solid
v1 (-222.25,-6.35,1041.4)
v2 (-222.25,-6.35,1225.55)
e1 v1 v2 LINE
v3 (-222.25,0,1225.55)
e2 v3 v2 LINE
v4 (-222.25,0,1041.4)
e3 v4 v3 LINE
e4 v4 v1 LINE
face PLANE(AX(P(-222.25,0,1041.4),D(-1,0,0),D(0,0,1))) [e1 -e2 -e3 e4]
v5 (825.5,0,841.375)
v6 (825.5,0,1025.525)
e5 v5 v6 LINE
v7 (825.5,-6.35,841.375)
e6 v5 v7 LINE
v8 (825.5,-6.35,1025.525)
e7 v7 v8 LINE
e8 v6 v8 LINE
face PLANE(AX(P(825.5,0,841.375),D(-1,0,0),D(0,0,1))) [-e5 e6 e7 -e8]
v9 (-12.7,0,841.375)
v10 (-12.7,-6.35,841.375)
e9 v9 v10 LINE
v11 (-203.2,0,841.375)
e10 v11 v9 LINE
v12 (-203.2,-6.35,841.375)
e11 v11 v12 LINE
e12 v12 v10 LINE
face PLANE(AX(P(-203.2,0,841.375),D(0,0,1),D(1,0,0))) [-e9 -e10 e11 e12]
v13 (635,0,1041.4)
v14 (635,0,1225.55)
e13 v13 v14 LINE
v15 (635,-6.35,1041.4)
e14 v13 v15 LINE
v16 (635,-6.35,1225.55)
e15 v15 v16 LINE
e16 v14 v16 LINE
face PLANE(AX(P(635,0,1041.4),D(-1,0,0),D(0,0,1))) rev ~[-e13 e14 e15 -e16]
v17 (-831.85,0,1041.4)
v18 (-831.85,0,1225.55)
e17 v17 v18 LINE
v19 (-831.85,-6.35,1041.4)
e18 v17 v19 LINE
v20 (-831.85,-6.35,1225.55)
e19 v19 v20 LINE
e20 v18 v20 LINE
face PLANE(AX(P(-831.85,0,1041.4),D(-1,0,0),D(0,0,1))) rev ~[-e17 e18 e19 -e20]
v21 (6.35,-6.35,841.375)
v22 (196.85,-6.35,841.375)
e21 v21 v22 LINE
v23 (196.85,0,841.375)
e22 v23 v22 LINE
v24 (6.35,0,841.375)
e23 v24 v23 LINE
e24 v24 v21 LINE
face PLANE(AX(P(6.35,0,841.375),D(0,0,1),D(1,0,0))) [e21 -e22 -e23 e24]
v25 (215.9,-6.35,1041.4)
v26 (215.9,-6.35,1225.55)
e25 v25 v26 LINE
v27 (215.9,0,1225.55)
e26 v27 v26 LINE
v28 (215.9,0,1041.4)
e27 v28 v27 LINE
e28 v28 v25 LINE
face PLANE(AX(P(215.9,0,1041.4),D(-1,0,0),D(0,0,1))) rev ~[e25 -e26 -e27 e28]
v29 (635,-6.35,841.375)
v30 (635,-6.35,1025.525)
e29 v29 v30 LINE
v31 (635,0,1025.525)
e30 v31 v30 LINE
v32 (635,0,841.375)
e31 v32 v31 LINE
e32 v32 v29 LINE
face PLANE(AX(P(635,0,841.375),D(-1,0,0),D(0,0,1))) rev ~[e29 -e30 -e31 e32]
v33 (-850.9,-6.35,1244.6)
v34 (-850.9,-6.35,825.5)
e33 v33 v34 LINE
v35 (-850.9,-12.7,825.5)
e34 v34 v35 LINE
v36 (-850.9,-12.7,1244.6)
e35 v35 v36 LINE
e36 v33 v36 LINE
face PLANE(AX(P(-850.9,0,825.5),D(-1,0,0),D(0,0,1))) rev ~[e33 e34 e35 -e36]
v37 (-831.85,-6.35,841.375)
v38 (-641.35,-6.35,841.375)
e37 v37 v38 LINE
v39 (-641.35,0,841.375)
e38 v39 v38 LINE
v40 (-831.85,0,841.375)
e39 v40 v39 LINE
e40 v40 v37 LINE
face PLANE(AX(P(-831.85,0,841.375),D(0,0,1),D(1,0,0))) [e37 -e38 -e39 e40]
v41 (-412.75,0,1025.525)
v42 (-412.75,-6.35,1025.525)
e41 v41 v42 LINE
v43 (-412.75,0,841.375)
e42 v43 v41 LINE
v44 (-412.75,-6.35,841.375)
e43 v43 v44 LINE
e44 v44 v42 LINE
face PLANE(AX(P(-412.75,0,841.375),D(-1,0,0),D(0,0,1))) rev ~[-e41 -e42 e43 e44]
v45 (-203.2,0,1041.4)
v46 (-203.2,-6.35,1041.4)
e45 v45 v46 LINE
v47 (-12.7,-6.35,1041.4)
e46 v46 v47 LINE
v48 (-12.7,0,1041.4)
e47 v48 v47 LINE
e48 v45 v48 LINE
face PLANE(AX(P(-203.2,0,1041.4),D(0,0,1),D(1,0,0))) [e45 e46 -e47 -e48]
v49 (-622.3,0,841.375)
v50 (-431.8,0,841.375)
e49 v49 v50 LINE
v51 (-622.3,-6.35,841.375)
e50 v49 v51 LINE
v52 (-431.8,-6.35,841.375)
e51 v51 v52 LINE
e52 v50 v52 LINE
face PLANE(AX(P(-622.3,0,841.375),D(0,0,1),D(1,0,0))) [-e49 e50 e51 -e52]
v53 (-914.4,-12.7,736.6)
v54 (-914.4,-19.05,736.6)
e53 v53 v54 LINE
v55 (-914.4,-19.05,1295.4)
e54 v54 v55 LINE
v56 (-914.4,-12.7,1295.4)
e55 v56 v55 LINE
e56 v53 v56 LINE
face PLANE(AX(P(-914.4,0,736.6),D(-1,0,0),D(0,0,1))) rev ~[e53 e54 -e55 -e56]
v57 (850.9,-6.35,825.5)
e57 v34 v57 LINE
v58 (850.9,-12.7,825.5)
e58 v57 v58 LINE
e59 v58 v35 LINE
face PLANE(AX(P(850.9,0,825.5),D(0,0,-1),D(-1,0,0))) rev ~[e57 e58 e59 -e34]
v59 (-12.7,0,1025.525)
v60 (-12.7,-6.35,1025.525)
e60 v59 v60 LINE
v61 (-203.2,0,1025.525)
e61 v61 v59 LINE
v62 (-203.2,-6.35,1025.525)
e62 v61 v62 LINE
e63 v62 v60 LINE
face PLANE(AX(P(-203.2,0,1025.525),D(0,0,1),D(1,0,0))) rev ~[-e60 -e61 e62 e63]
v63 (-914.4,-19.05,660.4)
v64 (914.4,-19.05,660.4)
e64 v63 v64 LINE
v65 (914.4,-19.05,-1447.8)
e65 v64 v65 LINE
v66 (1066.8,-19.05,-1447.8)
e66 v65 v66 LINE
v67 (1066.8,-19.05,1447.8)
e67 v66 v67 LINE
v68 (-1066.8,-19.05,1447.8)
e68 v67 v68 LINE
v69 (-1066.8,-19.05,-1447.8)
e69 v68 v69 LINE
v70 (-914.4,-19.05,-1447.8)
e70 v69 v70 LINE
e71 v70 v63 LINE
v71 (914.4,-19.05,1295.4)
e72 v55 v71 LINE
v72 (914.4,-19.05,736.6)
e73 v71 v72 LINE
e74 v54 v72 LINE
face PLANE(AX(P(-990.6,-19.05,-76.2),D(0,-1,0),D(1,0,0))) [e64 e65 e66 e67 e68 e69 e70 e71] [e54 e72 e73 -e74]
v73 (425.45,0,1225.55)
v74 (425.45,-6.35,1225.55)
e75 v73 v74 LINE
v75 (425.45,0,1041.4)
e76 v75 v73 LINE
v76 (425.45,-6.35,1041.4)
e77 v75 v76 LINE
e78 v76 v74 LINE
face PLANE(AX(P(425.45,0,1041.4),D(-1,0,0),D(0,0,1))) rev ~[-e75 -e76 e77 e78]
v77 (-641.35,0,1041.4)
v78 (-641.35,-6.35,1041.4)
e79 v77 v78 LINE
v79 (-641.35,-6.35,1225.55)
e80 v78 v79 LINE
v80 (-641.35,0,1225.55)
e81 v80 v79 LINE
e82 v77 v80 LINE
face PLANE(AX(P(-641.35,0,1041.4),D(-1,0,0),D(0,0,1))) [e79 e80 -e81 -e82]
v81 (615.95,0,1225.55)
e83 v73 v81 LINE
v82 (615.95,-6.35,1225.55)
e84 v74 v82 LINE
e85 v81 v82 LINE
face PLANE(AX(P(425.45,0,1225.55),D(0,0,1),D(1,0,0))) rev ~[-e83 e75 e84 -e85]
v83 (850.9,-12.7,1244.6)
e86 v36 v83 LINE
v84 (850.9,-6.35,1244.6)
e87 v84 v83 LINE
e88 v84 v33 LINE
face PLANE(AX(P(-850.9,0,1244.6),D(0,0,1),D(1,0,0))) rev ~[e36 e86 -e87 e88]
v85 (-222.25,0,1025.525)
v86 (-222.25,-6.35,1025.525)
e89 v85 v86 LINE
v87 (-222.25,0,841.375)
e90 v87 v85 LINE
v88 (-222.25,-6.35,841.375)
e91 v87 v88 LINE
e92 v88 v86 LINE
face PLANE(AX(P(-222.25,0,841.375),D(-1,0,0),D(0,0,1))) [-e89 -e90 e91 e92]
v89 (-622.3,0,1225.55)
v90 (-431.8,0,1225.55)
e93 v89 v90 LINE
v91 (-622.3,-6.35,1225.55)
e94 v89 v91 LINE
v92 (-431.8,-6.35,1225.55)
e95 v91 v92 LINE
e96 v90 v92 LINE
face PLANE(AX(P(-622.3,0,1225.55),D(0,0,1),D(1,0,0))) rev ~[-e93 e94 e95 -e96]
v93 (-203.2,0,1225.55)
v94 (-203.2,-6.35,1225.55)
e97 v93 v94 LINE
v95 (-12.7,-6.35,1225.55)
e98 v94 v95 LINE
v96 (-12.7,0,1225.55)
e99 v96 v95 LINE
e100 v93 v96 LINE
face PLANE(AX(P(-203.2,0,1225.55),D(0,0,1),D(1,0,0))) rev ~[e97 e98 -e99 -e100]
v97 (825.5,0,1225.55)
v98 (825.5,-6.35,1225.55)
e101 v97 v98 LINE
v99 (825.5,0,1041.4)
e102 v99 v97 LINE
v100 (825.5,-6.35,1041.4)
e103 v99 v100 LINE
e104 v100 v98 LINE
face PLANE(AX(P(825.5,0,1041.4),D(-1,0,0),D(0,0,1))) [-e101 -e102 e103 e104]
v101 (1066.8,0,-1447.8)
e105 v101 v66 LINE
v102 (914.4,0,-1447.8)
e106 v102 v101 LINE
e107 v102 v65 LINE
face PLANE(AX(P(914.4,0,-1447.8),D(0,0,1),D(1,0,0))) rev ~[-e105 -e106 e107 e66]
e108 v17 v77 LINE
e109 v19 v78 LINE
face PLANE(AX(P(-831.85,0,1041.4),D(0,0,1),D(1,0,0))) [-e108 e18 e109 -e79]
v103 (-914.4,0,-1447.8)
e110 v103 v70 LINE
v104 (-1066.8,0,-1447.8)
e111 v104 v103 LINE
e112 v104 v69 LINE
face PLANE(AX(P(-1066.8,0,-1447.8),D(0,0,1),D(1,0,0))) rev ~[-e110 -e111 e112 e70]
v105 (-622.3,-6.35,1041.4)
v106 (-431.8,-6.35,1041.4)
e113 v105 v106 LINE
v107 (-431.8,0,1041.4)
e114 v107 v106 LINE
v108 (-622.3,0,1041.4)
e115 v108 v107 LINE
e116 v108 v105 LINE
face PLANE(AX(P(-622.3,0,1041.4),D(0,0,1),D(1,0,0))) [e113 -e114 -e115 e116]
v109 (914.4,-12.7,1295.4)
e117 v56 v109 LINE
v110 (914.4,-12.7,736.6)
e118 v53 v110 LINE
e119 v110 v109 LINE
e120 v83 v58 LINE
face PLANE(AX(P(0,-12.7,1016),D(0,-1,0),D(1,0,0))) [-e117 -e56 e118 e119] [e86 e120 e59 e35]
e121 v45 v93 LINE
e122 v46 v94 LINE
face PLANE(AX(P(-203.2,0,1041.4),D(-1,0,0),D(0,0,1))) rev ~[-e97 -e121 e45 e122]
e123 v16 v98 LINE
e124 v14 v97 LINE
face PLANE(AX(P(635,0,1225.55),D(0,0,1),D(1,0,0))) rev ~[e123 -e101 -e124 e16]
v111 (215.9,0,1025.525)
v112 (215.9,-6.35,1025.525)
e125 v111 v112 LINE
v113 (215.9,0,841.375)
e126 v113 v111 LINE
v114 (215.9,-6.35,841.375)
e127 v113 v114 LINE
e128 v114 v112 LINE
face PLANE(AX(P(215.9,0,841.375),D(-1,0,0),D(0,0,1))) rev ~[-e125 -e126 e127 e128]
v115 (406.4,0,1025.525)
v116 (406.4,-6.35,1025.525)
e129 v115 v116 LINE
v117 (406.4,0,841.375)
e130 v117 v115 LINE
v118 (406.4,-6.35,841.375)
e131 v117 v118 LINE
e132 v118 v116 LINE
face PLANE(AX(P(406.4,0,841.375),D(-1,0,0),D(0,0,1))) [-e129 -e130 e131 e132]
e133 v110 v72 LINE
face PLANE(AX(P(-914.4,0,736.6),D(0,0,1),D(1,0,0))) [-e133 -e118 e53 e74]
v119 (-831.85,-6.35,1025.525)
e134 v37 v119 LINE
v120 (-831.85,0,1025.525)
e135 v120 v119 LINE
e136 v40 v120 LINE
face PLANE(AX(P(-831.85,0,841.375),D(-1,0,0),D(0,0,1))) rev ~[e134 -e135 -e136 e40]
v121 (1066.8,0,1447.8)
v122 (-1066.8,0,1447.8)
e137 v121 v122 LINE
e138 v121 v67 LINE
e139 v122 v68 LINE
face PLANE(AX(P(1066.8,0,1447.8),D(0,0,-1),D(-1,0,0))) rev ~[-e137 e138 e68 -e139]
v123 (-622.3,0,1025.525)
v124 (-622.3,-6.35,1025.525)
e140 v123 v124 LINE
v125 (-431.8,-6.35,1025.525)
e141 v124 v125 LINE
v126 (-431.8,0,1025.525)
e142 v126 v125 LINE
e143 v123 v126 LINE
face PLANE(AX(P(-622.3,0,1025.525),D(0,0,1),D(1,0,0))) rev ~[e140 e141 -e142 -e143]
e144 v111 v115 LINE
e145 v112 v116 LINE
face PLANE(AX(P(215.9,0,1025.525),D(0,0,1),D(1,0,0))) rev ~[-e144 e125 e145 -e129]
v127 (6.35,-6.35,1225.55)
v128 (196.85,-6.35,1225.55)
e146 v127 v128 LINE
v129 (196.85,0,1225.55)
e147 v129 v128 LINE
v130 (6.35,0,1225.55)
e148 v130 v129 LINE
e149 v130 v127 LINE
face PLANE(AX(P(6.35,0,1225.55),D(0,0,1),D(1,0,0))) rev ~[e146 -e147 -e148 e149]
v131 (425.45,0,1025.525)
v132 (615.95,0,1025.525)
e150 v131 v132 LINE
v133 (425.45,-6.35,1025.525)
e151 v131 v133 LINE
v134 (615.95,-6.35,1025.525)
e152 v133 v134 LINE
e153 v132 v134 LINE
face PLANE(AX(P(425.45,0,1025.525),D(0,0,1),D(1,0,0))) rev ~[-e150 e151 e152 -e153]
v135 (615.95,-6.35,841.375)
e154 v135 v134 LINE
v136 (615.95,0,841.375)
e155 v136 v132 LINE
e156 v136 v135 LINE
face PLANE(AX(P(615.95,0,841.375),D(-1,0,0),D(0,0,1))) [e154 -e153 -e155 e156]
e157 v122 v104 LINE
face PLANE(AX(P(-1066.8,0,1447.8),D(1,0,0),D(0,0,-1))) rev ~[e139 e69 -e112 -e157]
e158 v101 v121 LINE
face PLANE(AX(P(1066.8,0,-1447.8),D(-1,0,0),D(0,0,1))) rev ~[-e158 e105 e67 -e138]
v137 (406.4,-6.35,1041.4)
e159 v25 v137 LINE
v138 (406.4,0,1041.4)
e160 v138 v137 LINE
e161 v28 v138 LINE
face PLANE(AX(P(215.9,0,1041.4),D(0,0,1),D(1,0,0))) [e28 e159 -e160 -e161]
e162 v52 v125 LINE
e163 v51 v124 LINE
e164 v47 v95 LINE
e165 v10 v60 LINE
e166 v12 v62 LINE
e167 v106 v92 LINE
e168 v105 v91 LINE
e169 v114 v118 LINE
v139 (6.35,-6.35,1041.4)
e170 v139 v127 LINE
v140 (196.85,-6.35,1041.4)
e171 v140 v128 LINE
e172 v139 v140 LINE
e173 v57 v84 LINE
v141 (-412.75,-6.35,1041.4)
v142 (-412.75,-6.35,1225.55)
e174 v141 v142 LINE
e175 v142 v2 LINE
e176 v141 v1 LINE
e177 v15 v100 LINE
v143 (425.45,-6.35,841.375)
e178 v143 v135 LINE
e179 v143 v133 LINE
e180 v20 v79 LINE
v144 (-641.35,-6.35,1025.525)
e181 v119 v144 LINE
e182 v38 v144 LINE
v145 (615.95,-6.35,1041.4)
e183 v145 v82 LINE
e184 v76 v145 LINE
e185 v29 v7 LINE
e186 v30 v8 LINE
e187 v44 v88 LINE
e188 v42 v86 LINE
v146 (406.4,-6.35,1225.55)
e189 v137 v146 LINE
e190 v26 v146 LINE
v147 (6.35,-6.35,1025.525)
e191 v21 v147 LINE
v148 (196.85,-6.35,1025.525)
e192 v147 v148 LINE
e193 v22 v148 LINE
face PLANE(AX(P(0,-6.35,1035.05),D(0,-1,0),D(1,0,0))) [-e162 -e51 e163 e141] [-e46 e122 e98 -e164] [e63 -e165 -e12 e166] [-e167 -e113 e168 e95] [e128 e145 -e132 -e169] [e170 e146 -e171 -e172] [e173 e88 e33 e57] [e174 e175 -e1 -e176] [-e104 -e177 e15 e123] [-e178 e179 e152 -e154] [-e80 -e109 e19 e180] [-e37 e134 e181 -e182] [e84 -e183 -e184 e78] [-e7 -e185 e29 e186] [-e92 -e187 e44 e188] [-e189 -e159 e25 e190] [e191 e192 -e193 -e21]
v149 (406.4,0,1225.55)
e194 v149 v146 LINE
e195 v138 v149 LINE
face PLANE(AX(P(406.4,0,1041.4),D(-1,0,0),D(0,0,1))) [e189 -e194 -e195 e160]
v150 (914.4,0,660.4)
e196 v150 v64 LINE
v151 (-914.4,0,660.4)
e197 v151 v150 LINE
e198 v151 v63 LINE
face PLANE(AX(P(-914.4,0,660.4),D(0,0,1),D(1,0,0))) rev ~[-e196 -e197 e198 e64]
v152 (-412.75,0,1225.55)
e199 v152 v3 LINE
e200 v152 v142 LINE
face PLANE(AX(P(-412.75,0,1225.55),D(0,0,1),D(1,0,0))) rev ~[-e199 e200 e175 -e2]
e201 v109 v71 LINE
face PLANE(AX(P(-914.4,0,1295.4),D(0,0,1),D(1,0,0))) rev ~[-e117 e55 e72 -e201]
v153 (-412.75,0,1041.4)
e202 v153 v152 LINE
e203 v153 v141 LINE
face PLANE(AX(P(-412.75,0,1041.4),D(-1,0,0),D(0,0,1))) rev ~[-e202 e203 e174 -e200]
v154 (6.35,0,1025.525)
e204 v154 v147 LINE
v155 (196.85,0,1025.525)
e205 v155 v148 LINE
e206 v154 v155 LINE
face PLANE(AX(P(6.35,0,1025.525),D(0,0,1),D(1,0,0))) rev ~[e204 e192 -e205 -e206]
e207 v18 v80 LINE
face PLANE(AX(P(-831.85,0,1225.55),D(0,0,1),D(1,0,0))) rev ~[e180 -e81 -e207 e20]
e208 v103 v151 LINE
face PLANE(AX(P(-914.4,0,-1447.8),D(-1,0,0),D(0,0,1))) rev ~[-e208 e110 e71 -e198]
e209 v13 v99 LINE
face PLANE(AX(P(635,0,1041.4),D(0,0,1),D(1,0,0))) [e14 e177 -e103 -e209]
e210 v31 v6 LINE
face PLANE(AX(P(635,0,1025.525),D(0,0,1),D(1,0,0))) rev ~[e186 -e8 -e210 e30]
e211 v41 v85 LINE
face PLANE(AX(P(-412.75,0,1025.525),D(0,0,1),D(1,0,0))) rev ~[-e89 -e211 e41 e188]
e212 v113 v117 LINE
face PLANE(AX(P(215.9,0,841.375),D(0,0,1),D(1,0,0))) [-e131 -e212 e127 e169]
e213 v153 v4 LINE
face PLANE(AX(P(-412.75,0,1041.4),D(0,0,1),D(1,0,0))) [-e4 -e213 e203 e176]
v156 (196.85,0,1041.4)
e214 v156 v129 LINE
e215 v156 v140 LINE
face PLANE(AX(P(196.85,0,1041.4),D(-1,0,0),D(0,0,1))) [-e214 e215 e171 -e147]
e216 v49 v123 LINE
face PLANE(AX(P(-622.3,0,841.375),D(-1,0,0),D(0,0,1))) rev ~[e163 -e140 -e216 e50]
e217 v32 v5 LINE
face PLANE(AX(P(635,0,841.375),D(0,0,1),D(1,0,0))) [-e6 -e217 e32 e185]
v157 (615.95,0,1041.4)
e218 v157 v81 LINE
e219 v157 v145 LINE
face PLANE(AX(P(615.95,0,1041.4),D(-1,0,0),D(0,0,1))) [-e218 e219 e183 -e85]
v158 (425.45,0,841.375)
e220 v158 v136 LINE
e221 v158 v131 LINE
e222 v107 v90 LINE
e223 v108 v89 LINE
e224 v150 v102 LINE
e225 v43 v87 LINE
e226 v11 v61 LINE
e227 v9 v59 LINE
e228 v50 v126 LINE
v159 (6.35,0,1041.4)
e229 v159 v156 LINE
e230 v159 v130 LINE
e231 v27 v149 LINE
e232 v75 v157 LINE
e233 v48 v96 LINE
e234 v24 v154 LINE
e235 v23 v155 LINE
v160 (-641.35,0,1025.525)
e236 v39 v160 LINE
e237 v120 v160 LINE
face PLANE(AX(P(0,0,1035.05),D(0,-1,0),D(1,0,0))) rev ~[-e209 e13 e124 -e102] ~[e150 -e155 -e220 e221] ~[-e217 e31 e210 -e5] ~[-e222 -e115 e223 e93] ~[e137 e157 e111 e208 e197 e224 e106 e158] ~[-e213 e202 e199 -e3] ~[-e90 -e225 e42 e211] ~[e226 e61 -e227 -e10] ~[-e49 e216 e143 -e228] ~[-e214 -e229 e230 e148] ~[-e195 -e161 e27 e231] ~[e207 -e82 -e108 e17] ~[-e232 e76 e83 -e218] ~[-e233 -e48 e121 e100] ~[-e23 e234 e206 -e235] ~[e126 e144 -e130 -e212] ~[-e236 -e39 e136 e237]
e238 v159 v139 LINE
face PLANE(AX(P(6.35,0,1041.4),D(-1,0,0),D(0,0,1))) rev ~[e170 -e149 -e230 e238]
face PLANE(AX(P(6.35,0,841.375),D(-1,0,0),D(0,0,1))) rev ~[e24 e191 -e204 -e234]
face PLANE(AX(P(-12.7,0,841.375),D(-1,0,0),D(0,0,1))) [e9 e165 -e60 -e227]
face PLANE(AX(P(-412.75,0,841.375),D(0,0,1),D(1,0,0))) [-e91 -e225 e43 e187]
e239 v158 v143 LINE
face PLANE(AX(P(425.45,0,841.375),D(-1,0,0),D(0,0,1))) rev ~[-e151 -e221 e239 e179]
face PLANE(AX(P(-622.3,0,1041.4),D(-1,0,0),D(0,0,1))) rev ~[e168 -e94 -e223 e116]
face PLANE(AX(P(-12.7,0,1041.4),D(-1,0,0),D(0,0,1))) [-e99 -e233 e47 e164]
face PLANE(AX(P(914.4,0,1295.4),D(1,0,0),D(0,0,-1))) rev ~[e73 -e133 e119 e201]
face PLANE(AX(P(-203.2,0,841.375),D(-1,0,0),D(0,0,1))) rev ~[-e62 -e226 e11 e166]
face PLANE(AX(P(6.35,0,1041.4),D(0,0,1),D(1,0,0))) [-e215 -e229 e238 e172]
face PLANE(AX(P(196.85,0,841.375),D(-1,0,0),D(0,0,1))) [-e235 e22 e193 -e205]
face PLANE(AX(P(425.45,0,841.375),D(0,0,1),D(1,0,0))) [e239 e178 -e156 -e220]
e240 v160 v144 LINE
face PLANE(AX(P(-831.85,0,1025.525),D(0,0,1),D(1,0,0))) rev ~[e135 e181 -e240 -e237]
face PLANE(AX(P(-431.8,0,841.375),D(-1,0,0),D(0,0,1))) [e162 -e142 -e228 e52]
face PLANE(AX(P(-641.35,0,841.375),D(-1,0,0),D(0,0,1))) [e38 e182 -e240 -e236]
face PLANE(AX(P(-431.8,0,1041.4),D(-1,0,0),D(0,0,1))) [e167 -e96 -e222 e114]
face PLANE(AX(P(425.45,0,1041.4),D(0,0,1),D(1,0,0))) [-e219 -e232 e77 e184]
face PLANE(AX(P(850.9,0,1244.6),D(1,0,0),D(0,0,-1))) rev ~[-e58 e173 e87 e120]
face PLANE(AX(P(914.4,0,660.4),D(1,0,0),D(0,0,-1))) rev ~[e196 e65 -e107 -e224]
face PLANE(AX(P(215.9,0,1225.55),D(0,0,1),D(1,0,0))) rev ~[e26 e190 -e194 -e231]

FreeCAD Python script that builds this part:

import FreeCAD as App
import Part
import Sketcher
Q = App.Units.Quantity

doc = App.newDocument("Part")
body = doc.addObject("PartDesign::Body", "Body")

# Sketch on XZ plane
sketch1 = body.newObject("Sketcher::SketchObject", "Sketch")
sketch1.AttachmentSupport = (doc.getObject("XZ_Plane"), [""])
sketch1.MapMode = "FlatFace"
sketch1.addGeometry(Part.LineSegment(App.Vector(-1067, -1448, 0), App.Vector(-914, -1448, 0)), False)
sketch1.addGeometry(Part.LineSegment(App.Vector(-914, -1448, 0), App.Vector(-914, 660, 0)), False)
sketch1.addGeometry(Part.LineSegment(App.Vector(-914, 660, 0), App.Vector(914, 660, 0)), False)
sketch1.addGeometry(Part.LineSegment(App.Vector(914, 660, 0), App.Vector(914, -1448, 0)), False)
sketch1.addGeometry(Part.LineSegment(App.Vector(914, -1448, 0), App.Vector(1067, -1448, 0)), False)
sketch1.addGeometry(Part.LineSegment(App.Vector(1067, -1448, 0), App.Vector(1067, 1448, 0)), False)
sketch1.addGeometry(Part.LineSegment(App.Vector(1067, 1448, 0), App.Vector(-1067, 1448, 0)), False)
sketch1.addGeometry(Part.LineSegment(App.Vector(-1067, 1448, 0), App.Vector(-1067, -1448, 0)), False)
sketch1.addGeometry(Part.LineSegment(App.Vector(-914, 737, 0), App.Vector(-914, 1295, 0)), False)
sketch1.addGeometry(Part.LineSegment(App.Vector(-914, 1295, 0), App.Vector(914, 1295, 0)), False)
sketch1.addGeometry(Part.LineSegment(App.Vector(914, 1295, 0), App.Vector(914, 737, 0)), False)
sketch1.addGeometry(Part.LineSegment(App.Vector(914, 737, 0), App.Vector(-914, 737, 0)), False)
sketch1.addConstraint(Sketcher.Constraint("Coincident", 0, 2, 1, 1))
sketch1.addConstraint(Sketcher.Constraint("Coincident", 1, 2, 2, 1))
sketch1.addConstraint(Sketcher.Constraint("Coincident", 2, 2, 3, 1))
sketch1.addConstraint(Sketcher.Constraint("Coincident", 3, 2, 4, 1))
sketch1.addConstraint(Sketcher.Constraint("Coincident", 4, 2, 5, 1))
sketch1.addConstraint(Sketcher.Constraint("Coincident", 5, 2, 6, 1))
sketch1.addConstraint(Sketcher.Constraint("Coincident", 6, 2, 7, 1))
sketch1.addConstraint(Sketcher.Constraint("Coincident", 7, 2, 0, 1))
sketch1.addConstraint(Sketcher.Constraint("Coincident", 8, 2, 9, 1))
sketch1.addConstraint(Sketcher.Constraint("Coincident", 9, 2, 10, 1))
sketch1.addConstraint(Sketcher.Constraint("Coincident", 10, 2, 11, 1))
sketch1.addConstraint(Sketcher.Constraint("Coincident", 11, 2, 8, 1))
sketch1.addConstraint(Sketcher.Constraint("Horizontal", 0))
sketch1.addConstraint(Sketcher.Constraint("Vertical", 1))
sketch1.addConstraint(Sketcher.Constraint("Horizontal", 2))
sketch1.addConstraint(Sketcher.Constraint("Vertical", 3))
sketch1.addConstraint(Sketcher.Constraint("Horizontal", 4))
sketch1.addConstraint(Sketcher.Constraint("Vertical", 5))
sketch1.addConstraint(Sketcher.Constraint("Horizontal", 6))
sketch1.addConstraint(Sketcher.Constraint("Vertical", 7))
sketch1.addConstraint(Sketcher.Constraint("Vertical", 8))
sketch1.addConstraint(Sketcher.Constraint("Horizontal", 9))
sketch1.addConstraint(Sketcher.Constraint("Vertical", 10))
sketch1.addConstraint(Sketcher.Constraint("Horizontal", 11))
sketch1.addConstraint(Sketcher.Constraint("Symmetric", 4, 2, 6, 2, -1, 1))
sketch1.addConstraint(Sketcher.Constraint("Symmetric", 0, 2, 3, 2, -2))
sketch1.addConstraint(Sketcher.Constraint("Vertical", 1, 2, 8, 2))
sketch1.addConstraint(Sketcher.Constraint("Vertical", 3, 2, 9, 2))
sketch1.addConstraint(Sketcher.Constraint("DistanceX", 0, 1, 0, 2, Q("6 in")))
sketch1.addConstraint(Sketcher.Constraint("DistanceX", 2, 1, 2, 2, Q("72 in")))
sketch1.addConstraint(Sketcher.Constraint("DistanceY", 1, 1, 1, 2, Q("83 in")))
sketch1.addConstraint(Sketcher.Constraint("DistanceY", 5, 1, 5, 2, Q("114 in")))
sketch1.addConstraint(Sketcher.Constraint("DistanceY", 8, 1, 8, 2, Q("22 in")))
sketch1.addConstraint(Sketcher.Constraint("DistanceY", -1, 1, 8, 2, Q("51 in")))
pad1 = body.newObject("PartDesign::Pad", "Pad")
pad1.Profile = sketch1
pad1.Length = Q("0.75 in")

# Sketch on XZ plane
sketch2 = body.newObject("Sketcher::SketchObject", "Sketch001")
sketch2.AttachmentSupport = (doc.getObject("XZ_Plane"), [""])
sketch2.MapMode = "FlatFace"
sketch2.addGeometry(Part.LineSegment(App.Vector(-914, 1295, 0), App.Vector(-914, 737, 0)), False)
sketch2.addGeometry(Part.LineSegment(App.Vector(-914, 737, 0), App.Vector(914, 737, 0)), False)
sketch2.addGeometry(Part.LineSegment(App.Vector(914, 737, 0), App.Vector(914, 1295, 0)), False)
sketch2.addGeometry(Part.LineSegment(App.Vector(914, 1295, 0), App.Vector(-914, 1295, 0)), False)
sketch2.addGeometry(Part.LineSegment(App.Vector(-851, 826, 0), App.Vector(-851, 1245, 0)), False)
sketch2.addGeometry(Part.LineSegment(App.Vector(-851, 1245, 0), App.Vector(851, 1245, 0)), False)
sketch2.addGeometry(Part.LineSegment(App.Vector(851, 1245, 0), App.Vector(851, 826, 0)), False)
sketch2.addGeometry(Part.LineSegment(App.Vector(851, 826, 0), App.Vector(-851, 826, 0)), False)
sketch2.addConstraint(Sketcher.Constraint("Coincident", 0, 2, 1, 1))
sketch2.addConstraint(Sketcher.Constraint("Coincident", 1, 2, 2, 1))
sketch2.addConstraint(Sketcher.Constraint("Coincident", 2, 2, 3, 1))
sketch2.addConstraint(Sketcher.Constraint("Coincident", 3, 2, 0, 1))
sketch2.addConstraint(Sketcher.Constraint("Coincident", 4, 2, 5, 1))
sketch2.addConstraint(Sketcher.Constraint("Coincident", 5, 2, 6, 1))
sketch2.addConstraint(Sketcher.Constraint("Coincident", 6, 2, 7, 1))
sketch2.addConstraint(Sketcher.Constraint("Coincident", 7, 2, 4, 1))
sketch2.addConstraint(Sketcher.Constraint("Vertical", 0))
sketch2.addConstraint(Sketcher.Constraint("Horizontal", 1))
sketch2.addConstraint(Sketcher.Constraint("Vertical", 2))
sketch2.addConstraint(Sketcher.Constraint("Horizontal", 3))
sketch2.addConstraint(Sketcher.Constraint("Vertical", 4))
sketch2.addConstraint(Sketcher.Constraint("Horizontal", 5))
sketch2.addConstraint(Sketcher.Constraint("Vertical", 6))
sketch2.addConstraint(Sketcher.Constraint("Horizontal", 7))
sketch2.addConstraint(Sketcher.Constraint("DistanceX", 1, 1, 1, 2, Q("72 in")))
sketch2.addConstraint(Sketcher.Constraint("DistanceX", 5, 1, 5, 2, Q("67 in")))
sketch2.addConstraint(Sketcher.Constraint("DistanceY", 0, 2, 0, 1, Q("22 in")))
sketch2.addConstraint(Sketcher.Constraint("DistanceY", 4, 1, 4, 2, Q("16.5 in")))
sketch2.addConstraint(Sketcher.Constraint("DistanceX", 0, 2, -1, 1, Q("36 in")))
sketch2.addConstraint(Sketcher.Constraint("DistanceY", -1, 1, 0, 2, Q("29 in")))
sketch2.addConstraint(Sketcher.Constraint("DistanceY", -1, 1, 4, 2, Q("49 in")))
sketch2.addConstraint(Sketcher.Constraint("DistanceX", 4, 2, -1, 1, Q("33.5 in")))
pad2 = body.newObject("PartDesign::Pad", "Pad001")
pad2.Profile = sketch2
pad2.Length = Q("0.5 in")

# Sketch on XZ plane
sketch3 = body.newObject("Sketcher::SketchObject", "Sketch002")
sketch3.AttachmentSupport = (doc.getObject("XZ_Plane"), [""])
sketch3.MapMode = "FlatFace"
sketch3.addGeometry(Part.LineSegment(App.Vector(-851, 1245, 0), App.Vector(-851, 826, 0)), False)
sketch3.addGeometry(Part.LineSegment(App.Vector(-851, 826, 0), App.Vector(851, 826, 0)), False)
sketch3.addGeometry(Part.LineSegment(App.Vector(851, 826, 0), App.Vector(851, 1245, 0)), False)
sketch3.addGeometry(Part.LineSegment(App.Vector(851, 1245, 0), App.Vector(-851, 1245, 0)), False)
sketch3.addGeometry(Part.LineSegment(App.Vector(-641, 841, 0), App.Vector(-832, 841, 0)), False)
sketch3.addGeometry(Part.LineSegment(App.Vector(-832, 841, 0), App.Vector(-832, 1026, 0)), False)
sketch3.addGeometry(Part.LineSegment(App.Vector(-832, 1026, 0), App.Vector(-641, 1026, 0)), False)
sketch3.addGeometry(Part.LineSegment(App.Vector(-641, 1026, 0), App.Vector(-641, 841, 0)), False)
sketch3.addGeometry(Part.LineSegment(App.Vector(-432, 841, 0), App.Vector(-622, 841, 0)), False)
sketch3.addGeometry(Part.LineSegment(App.Vector(-622, 841, 0), App.Vector(-622, 1026, 0)), False)
sketch3.addGeometry(Part.LineSegment(App.Vector(-622, 1026, 0), App.Vector(-432, 1026, 0)), False)
sketch3.addGeometry(Part.LineSegment(App.Vector(-432, 1026, 0), App.Vector(-432, 841, 0)), False)
sketch3.addGeometry(Part.LineSegment(App.Vector(-222, 841, 0), App.Vector(-413, 841, 0)), False)
sketch3.addGeometry(Part.LineSegment(App.Vector(-413, 841, 0), App.Vector(-413, 1026, 0)), False)
sketch3.addGeometry(Part.LineSegment(App.Vector(-413, 1026, 0), App.Vector(-222, 1026, 0)), False)
sketch3.addGeometry(Part.LineSegment(App.Vector(-222, 1026, 0), App.Vector(-222, 841, 0)), False)
sketch3.addGeometry(Part.LineSegment(App.Vector(-13, 841, 0), App.Vector(-203, 841, 0)), False)
sketch3.addGeometry(Part.LineSegment(App.Vector(-203, 841, 0), App.Vector(-203, 1026, 0)), False)
sketch3.addGeometry(Part.LineSegment(App.Vector(-203, 1026, 0), App.Vector(-13, 1026, 0)), False)
sketch3.addGeometry(Part.LineSegment(App.Vector(-13, 1026, 0), App.Vector(-13, 841, 0)), False)
sketch3.addGeometry(Part.LineSegment(App.Vector(197, 841, 0), App.Vector(6, 841, 0)), False)
sketch3.addGeometry(Part.LineSegment(App.Vector(6, 841, 0), App.Vector(6, 1026, 0)), False)
sketch3.addGeometry(Part.LineSegment(App.Vector(6, 1026, 0), App.Vector(197, 1026, 0)), False)
sketch3.addGeometry(Part.LineSegment(App.Vector(197, 1026, 0), App.Vector(197, 841, 0)), False)
sketch3.addGeometry(Part.LineSegment(App.Vector(406, 841, 0), App.Vector(216, 841, 0)), False)
sketch3.addGeometry(Part.LineSegment(App.Vector(216, 841, 0), App.Vector(216, 1026, 0)), False)
sketch3.addGeometry(Part.LineSegment(App.Vector(216, 1026, 0), App.Vector(406, 1026, 0)), False)
sketch3.addGeometry(Part.LineSegment(App.Vector(406, 1026, 0), App.Vector(406, 841, 0)), False)
sketch3.addGeometry(Part.LineSegment(App.Vector(616, 841, 0), App.Vector(425, 841, 0)), False)
sketch3.addGeometry(Part.LineSegment(App.Vector(425, 841, 0), App.Vector(425, 1026, 0)), False)
sketch3.addGeometry(Part.LineSegment(App.Vector(425, 1026, 0), App.Vector(616, 1026, 0)), False)
sketch3.addGeometry(Part.LineSegment(App.Vector(616, 1026, 0), App.Vector(616, 841, 0)), False)
sketch3.addGeometry(Part.LineSegment(App.Vector(826, 841, 0), App.Vector(635, 841, 0)), False)
sketch3.addGeometry(Part.LineSegment(App.Vector(635, 841, 0), App.Vector(635, 1026, 0)), False)
sketch3.addGeometry(Part.LineSegment(App.Vector(635, 1026, 0), App.Vector(826, 1026, 0)), False)
sketch3.addGeometry(Part.LineSegment(App.Vector(826, 1026, 0), App.Vector(826, 841, 0)), False)
sketch3.addGeometry(Part.LineSegment(App.Vector(-641, 1041, 0), App.Vector(-832, 1041, 0)), False)
sketch3.addGeometry(Part.LineSegment(App.Vector(-832, 1041, 0), App.Vector(-832, 1226, 0)), False)
sketch3.addGeometry(Part.LineSegment(App.Vector(-832, 1226, 0), App.Vector(-641, 1226, 0)), False)
sketch3.addGeometry(Part.LineSegment(App.Vector(-641, 1226, 0), App.Vector(-641, 1041, 0)), False)
sketch3.addGeometry(Part.LineSegment(App.Vector(-432, 1041, 0), App.Vector(-622, 1041, 0)), False)
sketch3.addGeometry(Part.LineSegment(App.Vector(-622, 1041, 0), App.Vector(-622, 1226, 0)), False)
sketch3.addGeometry(Part.LineSegment(App.Vector(-622, 1226, 0), App.Vector(-432, 1226, 0)), False)
sketch3.addGeometry(Part.LineSegment(App.Vector(-432, 1226, 0), App.Vector(-432, 1041, 0)), False)
sketch3.addGeometry(Part.LineSegment(App.Vector(-222, 1041, 0), App.Vector(-413, 1041, 0)), False)
sketch3.addGeometry(Part.LineSegment(App.Vector(-413, 1041, 0), App.Vector(-413, 1226, 0)), False)
sketch3.addGeometry(Part.LineSegment(App.Vector(-413, 1226, 0), App.Vector(-222, 1226, 0)), False)
sketch3.addGeometry(Part.LineSegment(App.Vector(-222, 1226, 0), App.Vector(-222, 1041, 0)), False)
sketch3.addGeometry(Part.LineSegment(App.Vector(-13, 1041, 0), App.Vector(-203, 1041, 0)), False)
sketch3.addGeometry(Part.LineSegment(App.Vector(-203, 1041, 0), App.Vector(-203, 1226, 0)), False)
sketch3.addGeometry(Part.LineSegment(App.Vector(-203, 1226, 0), App.Vector(-13, 1226, 0)), False)
sketch3.addGeometry(Part.LineSegment(App.Vector(-13, 1226, 0), App.Vector(-13, 1041, 0)), False)
sketch3.addGeometry(Part.LineSegment(App.Vector(197, 1041, 0), App.Vector(6, 1041, 0)), False)
sketch3.addGeometry(Part.LineSegment(App.Vector(6, 1041, 0), App.Vector(6, 1226, 0)), False)
sketch3.addGeometry(Part.LineSegment(App.Vector(6, 1226, 0), App.Vector(197, 1226, 0)), False)
sketch3.addGeometry(Part.LineSegment(App.Vector(197, 1226, 0), App.Vector(197, 1041, 0)), False)
sketch3.addGeometry(Part.LineSegment(App.Vector(406, 1041, 0), App.Vector(216, 1041, 0)), False)
sketch3.addGeometry(Part.LineSegment(App.Vector(216, 1041, 0), App.Vector(216, 1226, 0)), False)
sketch3.addGeometry(Part.LineSegment(App.Vector(216, 1226, 0), App.Vector(406, 1226, 0)), False)
sketch3.addGeometry(Part.LineSegment(App.Vector(406, 1226, 0), App.Vector(406, 1041, 0)), False)
sketch3.addGeometry(Part.LineSegment(App.Vector(616, 1041, 0), App.Vector(425, 1041, 0)), False)
sketch3.addGeometry(Part.LineSegment(App.Vector(425, 1041, 0), App.Vector(425, 1226, 0)), False)
sketch3.addGeometry(Part.LineSegment(App.Vector(425, 1226, 0), App.Vector(616, 1226, 0)), False)
sketch3.addGeometry(Part.LineSegment(App.Vector(616, 1226, 0), App.Vector(616, 1041, 0)), False)
sketch3.addGeometry(Part.LineSegment(App.Vector(826, 1041, 0), App.Vector(635, 1041, 0)), False)
sketch3.addGeometry(Part.LineSegment(App.Vector(635, 1041, 0), App.Vector(635, 1226, 0)), False)
sketch3.addGeometry(Part.LineSegment(App.Vector(635, 1226, 0), App.Vector(826, 1226, 0)), False)
sketch3.addGeometry(Part.LineSegment(App.Vector(826, 1226, 0), App.Vector(826, 1041, 0)), False)
sketch3.addConstraint(Sketcher.Constraint("Coincident", 0, 2, 1, 1))
sketch3.addConstraint(Sketcher.Constraint("Coincident", 1, 2, 2, 1))
sketch3.addConstraint(Sketcher.Constraint("Coincident", 2, 2, 3, 1))
sketch3.addConstraint(Sketcher.Constraint("Coincident", 3, 2, 0, 1))
sketch3.addConstraint(Sketcher.Constraint("Coincident", 4, 2, 5, 1))
sketch3.addConstraint(Sketcher.Constraint("Coincident", 5, 2, 6, 1))
sketch3.addConstraint(Sketcher.Constraint("Coincident", 6, 2, 7, 1))
sketch3.addConstraint(Sketcher.Constraint("Coincident", 7, 2, 4, 1))
sketch3.addConstraint(Sketcher.Constraint("Coincident", 8, 2, 9, 1))
sketch3.addConstraint(Sketcher.Constraint("Coincident", 9, 2, 10, 1))
sketch3.addConstraint(Sketcher.Constraint("Coincident", 10, 2, 11, 1))
sketch3.addConstraint(Sketcher.Constraint("Coincident", 11, 2, 8, 1))
sketch3.addConstraint(Sketcher.Constraint("Coincident", 12, 2, 13, 1))
sketch3.addConstraint(Sketcher.Constraint("Coincident", 13, 2, 14, 1))
sketch3.addConstraint(Sketcher.Constraint("Coincident", 14, 2, 15, 1))
sketch3.addConstraint(Sketcher.Constraint("Coincident", 15, 2, 12, 1))
sketch3.addConstraint(Sketcher.Constraint("Coincident", 16, 2, 17, 1))
sketch3.addConstraint(Sketcher.Constraint("Coincident", 17, 2, 18, 1))
sketch3.addConstraint(Sketcher.Constraint("Coincident", 18, 2, 19, 1))
sketch3.addConstraint(Sketcher.Constraint("Coincident", 19, 2, 16, 1))
sketch3.addConstraint(Sketcher.Constraint("Coincident", 20, 2, 21, 1))
sketch3.addConstraint(Sketcher.Constraint("Coincident", 21, 2, 22, 1))
sketch3.addConstraint(Sketcher.Constraint("Coincident", 22, 2, 23, 1))
sketch3.addConstraint(Sketcher.Constraint("Coincident", 23, 2, 20, 1))
sketch3.addConstraint(Sketcher.Constraint("Coincident", 24, 2, 25, 1))
sketch3.addConstraint(Sketcher.Constraint("Coincident", 25, 2, 26, 1))
sketch3.addConstraint(Sketcher.Constraint("Coincident", 26, 2, 27, 1))
sketch3.addConstraint(Sketcher.Constraint("Coincident", 27, 2, 24, 1))
sketch3.addConstraint(Sketcher.Constraint("Coincident", 28, 2, 29, 1))
sketch3.addConstraint(Sketcher.Constraint("Coincident", 29, 2, 30, 1))
sketch3.addConstraint(Sketcher.Constraint("Coincident", 30, 2, 31, 1))
sketch3.addConstraint(Sketcher.Constraint("Coincident", 31, 2, 28, 1))
sketch3.addConstraint(Sketcher.Constraint("Coincident", 32, 2, 33, 1))
sketch3.addConstraint(Sketcher.Constraint("Coincident", 33, 2, 34, 1))
sketch3.addConstraint(Sketcher.Constraint("Coincident", 34, 2, 35, 1))
sketch3.addConstraint(Sketcher.Constraint("Coincident", 35, 2, 32, 1))
sketch3.addConstraint(Sketcher.Constraint("Coincident", 36, 2, 37, 1))
sketch3.addConstraint(Sketcher.Constraint("Coincident", 37, 2, 38, 1))
sketch3.addConstraint(Sketcher.Constraint("Coincident", 38, 2, 39, 1))
sketch3.addConstraint(Sketcher.Constraint("Coincident", 39, 2, 36, 1))
sketch3.addConstraint(Sketcher.Constraint("Coincident", 40, 2, 41, 1))
sketch3.addConstraint(Sketcher.Constraint("Coincident", 41, 2, 42, 1))
sketch3.addConstraint(Sketcher.Constraint("Coincident", 42, 2, 43, 1))
sketch3.addConstraint(Sketcher.Constraint("Coincident", 43, 2, 40, 1))
sketch3.addConstraint(Sketcher.Constraint("Coincident", 44, 2, 45, 1))
sketch3.addConstraint(Sketcher.Constraint("Coincident", 45, 2, 46, 1))
sketch3.addConstraint(Sketcher.Constraint("Coincident", 46, 2, 47, 1))
sketch3.addConstraint(Sketcher.Constraint("Coincident", 47, 2, 44, 1))
sketch3.addConstraint(Sketcher.Constraint("Coincident", 48, 2, 49, 1))
sketch3.addConstraint(Sketcher.Constraint("Coincident", 49, 2, 50, 1))
sketch3.addConstraint(Sketcher.Constraint("Coincident", 50, 2, 51, 1))
sketch3.addConstraint(Sketcher.Constraint("Coincident", 51, 2, 48, 1))
sketch3.addConstraint(Sketcher.Constraint("Coincident", 52, 2, 53, 1))
sketch3.addConstraint(Sketcher.Constraint("Coincident", 53, 2, 54, 1))
sketch3.addConstraint(Sketcher.Constraint("Coincident", 54, 2, 55, 1))
sketch3.addConstraint(Sketcher.Constraint("Coincident", 55, 2, 52, 1))
sketch3.addConstraint(Sketcher.Constraint("Coincident", 56, 2, 57, 1))
sketch3.addConstraint(Sketcher.Constraint("Coincident", 57, 2, 58, 1))
sketch3.addConstraint(Sketcher.Constraint("Coincident", 58, 2, 59, 1))
sketch3.addConstraint(Sketcher.Constraint("Coincident", 59, 2, 56, 1))
sketch3.addConstraint(Sketcher.Constraint("Coincident", 60, 2, 61, 1))
sketch3.addConstraint(Sketcher.Constraint("Coincident", 61, 2, 62, 1))
sketch3.addConstraint(Sketcher.Constraint("Coincident", 62, 2, 63, 1))
sketch3.addConstraint(Sketcher.Constraint("Coincident", 63, 2, 60, 1))
sketch3.addConstraint(Sketcher.Constraint("Coincident", 64, 2, 65, 1))
sketch3.addConstraint(Sketcher.Constraint("Coincident", 65, 2, 66, 1))
sketch3.addConstraint(Sketcher.Constraint("Coincident", 66, 2, 67, 1))
sketch3.addConstraint(Sketcher.Constraint("Coincident", 67, 2, 64, 1))
sketch3.addConstraint(Sketcher.Constraint("Vertical", 0))
sketch3.addConstraint(Sketcher.Constraint("Horizontal", 1))
sketch3.addConstraint(Sketcher.Constraint("Vertical", 2))
sketch3.addConstraint(Sketcher.Constraint("Horizontal", 3))
sketch3.addConstraint(Sketcher.Constraint("Horizontal", 4))
sketch3.addConstraint(Sketcher.Constraint("Vertical", 5))
sketch3.addConstraint(Sketcher.Constraint("Horizontal", 6))
sketch3.addConstraint(Sketcher.Constraint("Vertical", 7))
sketch3.addConstraint(Sketcher.Constraint("Horizontal", 8))
sketch3.addConstraint(Sketcher.Constraint("Vertical", 9))
sketch3.addConstraint(Sketcher.Constraint("Horizontal", 10))
sketch3.addConstraint(Sketcher.Constraint("Vertical", 11))
sketch3.addConstraint(Sketcher.Constraint("Horizontal", 12))
sketch3.addConstraint(Sketcher.Constraint("Vertical", 13))
sketch3.addConstraint(Sketcher.Constraint("Horizontal", 14))
sketch3.addConstraint(Sketcher.Constraint("Vertical", 15))
sketch3.addConstraint(Sketcher.Constraint("Horizontal", 16))
sketch3.addConstraint(Sketcher.Constraint("Vertical", 17))
sketch3.addConstraint(Sketcher.Constraint("Horizontal", 18))
sketch3.addConstraint(Sketcher.Constraint("Vertical", 19))
sketch3.addConstraint(Sketcher.Constraint("Horizontal", 20))
sketch3.addConstraint(Sketcher.Constraint("Vertical", 21))
sketch3.addConstraint(Sketcher.Constraint("Horizontal", 22))
sketch3.addConstraint(Sketcher.Constraint("Vertical", 23))
sketch3.addConstraint(Sketcher.Constraint("Horizontal", 24))
sketch3.addConstraint(Sketcher.Constraint("Vertical", 25))
sketch3.addConstraint(Sketcher.Constraint("Horizontal", 26))
sketch3.addConstraint(Sketcher.Constraint("Vertical", 27))
sketch3.addConstraint(Sketcher.Constraint("Horizontal", 28))
sketch3.addConstraint(Sketcher.Constraint("Vertical", 29))
sketch3.addConstraint(Sketcher.Constraint("Horizontal", 30))
sketch3.addConstraint(Sketcher.Constraint("Vertical", 31))
sketch3.addConstraint(Sketcher.Constraint("Horizontal", 32))
sketch3.addConstraint(Sketcher.Constraint("Vertical", 33))
sketch3.addConstraint(Sketcher.Constraint("Horizontal", 34))
sketch3.addConstraint(Sketcher.Constraint("Vertical", 35))
sketch3.addConstraint(Sketcher.Constraint("Horizontal", 36))
sketch3.addConstraint(Sketcher.Constraint("Vertical", 37))
sketch3.addConstraint(Sketcher.Constraint("Horizontal", 38))
sketch3.addConstraint(Sketcher.Constraint("Vertical", 39))
sketch3.addConstraint(Sketcher.Constraint("Horizontal", 40))
sketch3.addConstraint(Sketcher.Constraint("Vertical", 41))
sketch3.addConstraint(Sketcher.Constraint("Horizontal", 42))
sketch3.addConstraint(Sketcher.Constraint("Vertical", 43))
sketch3.addConstraint(Sketcher.Constraint("Horizontal", 44))
sketch3.addConstraint(Sketcher.Constraint("Vertical", 45))
sketch3.addConstraint(Sketcher.Constraint("Horizontal", 46))
sketch3.addConstraint(Sketcher.Constraint("Vertical", 47))
sketch3.addConstraint(Sketcher.Constraint("Horizontal", 48))
sketch3.addConstraint(Sketcher.Constraint("Vertical", 49))
sketch3.addConstraint(Sketcher.Constraint("Horizontal", 50))
sketch3.addConstraint(Sketcher.Constraint("Vertical", 51))
sketch3.addConstraint(Sketcher.Constraint("Horizontal", 52))
sketch3.addConstraint(Sketcher.Constraint("Vertical", 53))
sketch3.addConstraint(Sketcher.Constraint("Horizontal", 54))
sketch3.addConstraint(Sketcher.Constraint("Vertical", 55))
sketch3.addConstraint(Sketcher.Constraint("Horizontal", 56))
sketch3.addConstraint(Sketcher.Constraint("Vertical", 57))
sketch3.addConstraint(Sketcher.Constraint("Horizontal", 58))
sketch3.addConstraint(Sketcher.Constraint("Vertical", 59))
sketch3.addConstraint(Sketcher.Constraint("Horizontal", 60))
sketch3.addConstraint(Sketcher.Constraint("Vertical", 61))
sketch3.addConstraint(Sketcher.Constraint("Horizontal", 62))
sketch3.addConstraint(Sketcher.Constraint("Vertical", 63))
sketch3.addConstraint(Sketcher.Constraint("Horizontal", 64))
sketch3.addConstraint(Sketcher.Constraint("Vertical", 65))
sketch3.addConstraint(Sketcher.Constraint("Horizontal", 66))
sketch3.addConstraint(Sketcher.Constraint("Vertical", 67))
sketch3.addConstraint(Sketcher.Constraint("Horizontal", 7, 2, 8, 2))
sketch3.addConstraint(Sketcher.Constraint("Horizontal", 6, 2, 9, 2))
sketch3.addConstraint(Sketcher.Constraint("Horizontal", 11, 2, 12, 2))
sketch3.addConstraint(Sketcher.Constraint("Horizontal", 10, 2, 13, 2))
sketch3.addConstraint(Sketcher.Constraint("Horizontal", 15, 2, 16, 2))
sketch3.addConstraint(Sketcher.Constraint("Horizontal", 14, 2, 17, 2))
sketch3.addConstraint(Sketcher.Constraint("Horizontal", 19, 2, 20, 2))
sketch3.addConstraint(Sketcher.Constraint("Horizontal", 18, 2, 21, 2))
sketch3.addConstraint(Sketcher.Constraint("Horizontal", 23, 2, 24, 2))
sketch3.addConstraint(Sketcher.Constraint("Horizontal", 22, 2, 25, 2))
sketch3.addConstraint(Sketcher.Constraint("Horizontal", 27, 2, 28, 2))
sketch3.addConstraint(Sketcher.Constraint("Horizontal", 26, 2, 29, 2))
sketch3.addConstraint(Sketcher.Constraint("Horizontal", 31, 2, 32, 2))
sketch3.addConstraint(Sketcher.Constraint("Horizontal", 30, 2, 33, 2))
sketch3.addConstraint(Sketcher.Constraint("Horizontal", 39, 2, 40, 2))
sketch3.addConstraint(Sketcher.Constraint("Horizontal", 38, 2, 41, 2))
sketch3.addConstraint(Sketcher.Constraint("Horizontal", 43, 2, 44, 2))
sketch3.addConstraint(Sketcher.Constraint("Horizontal", 42, 2, 45, 2))
sketch3.addConstraint(Sketcher.Constraint("Horizontal", 47, 2, 48, 2))
sketch3.addConstraint(Sketcher.Constraint("Horizontal", 46, 2, 49, 2))
sketch3.addConstraint(Sketcher.Constraint("Horizontal", 51, 2, 52, 2))
sketch3.addConstraint(Sketcher.Constraint("Horizontal", 50, 2, 53, 2))
sketch3.addConstraint(Sketcher.Constraint("Horizontal", 55, 2, 56, 2))
sketch3.addConstraint(Sketcher.Constraint("Horizontal", 54, 2, 57, 2))
sketch3.addConstraint(Sketcher.Constraint("Horizontal", 59, 2, 60, 2))
sketch3.addConstraint(Sketcher.Constraint("Horizontal", 58, 2, 61, 2))
sketch3.addConstraint(Sketcher.Constraint("Horizontal", 63, 2, 64, 2))
sketch3.addConstraint(Sketcher.Constraint("Horizontal", 62, 2, 65, 2))
sketch3.addConstraint(Sketcher.Constraint("Vertical", 5, 2, 36, 2))
sketch3.addConstraint(Sketcher.Constraint("Vertical", 7, 2, 38, 2))
sketch3.addConstraint(Sketcher.Constraint("Vertical", 9, 2, 40, 2))
sketch3.addConstraint(Sketcher.Constraint("Vertical", 11, 2, 42, 2))
sketch3.addConstraint(Sketcher.Constraint("Vertical", 13, 2, 44, 2))
sketch3.addConstraint(Sketcher.Constraint("Vertical", 15, 2, 46, 2))
sketch3.addConstraint(Sketcher.Constraint("Vertical", 17, 2, 48, 2))
sketch3.addConstraint(Sketcher.Constraint("Vertical", 19, 2, 50, 2))
sketch3.addConstraint(Sketcher.Constraint("Vertical", 21, 2, 52, 2))
sketch3.addConstraint(Sketcher.Constraint("Vertical", 23, 2, 54, 2))
sketch3.addConstraint(Sketcher.Constraint("Vertical", 25, 2, 56, 2))
sketch3.addConstraint(Sketcher.Constraint("Vertical", 27, 2, 58, 2))
sketch3.addConstraint(Sketcher.Constraint("Vertical", 29, 2, 60, 2))
sketch3.addConstraint(Sketcher.Constraint("Vertical", 31, 2, 62, 2))
sketch3.addConstraint(Sketcher.Constraint("Vertical", 33, 2, 64, 2))
sketch3.addConstraint(Sketcher.Constraint("Vertical", 35, 2, 66, 2))
sketch3.addConstraint(Sketcher.Constraint("Equal", 6, 8))
sketch3.addConstraint(Sketcher.Constraint("Equal", 10, 12))
sketch3.addConstraint(Sketcher.Constraint("Equal", 14, 16))
sketch3.addConstraint(Sketcher.Constraint("Equal", 18, 20))
sketch3.addConstraint(Sketcher.Constraint("Equal", 22, 24))
sketch3.addConstraint(Sketcher.Constraint("Equal", 26, 28))
sketch3.addConstraint(Sketcher.Constraint("Equal", 30, 32))
sketch3.addConstraint(Sketcher.Constraint("Equal", 35, 37))
sketch3.addConstraint(Sketcher.Constraint("DistanceX", 1, 1, 1, 2, Q("67 in")))
sketch3.addConstraint(Sketcher.Constraint("DistanceX", 4, 2, 4, 1, Q("7.5 in")))
sketch3.addConstraint(Sketcher.Constraint("DistanceY", 0, 2, 0, 1, Q("16.5 in")))
sketch3.addConstraint(Sketcher.Constraint("DistanceY", -1, 1, 2, 2, Q("49 in")))
sketch3.addConstraint(Sketcher.Constraint("DistanceX", 10, 2, -1, 1, Q("17 in")))
sketch3.addConstraint(Sketcher.Constraint("DistanceX", 16, 2, -1, 1, Q("8 in")))
sketch3.addConstraint(Sketcher.Constraint("DistanceX", -1, 1, 26, 2, Q("16 in")))
sketch3.addConstraint(Sketcher.Constraint("DistanceX", -1, 1, 32, 2, Q("25 in")))
sketch3.addConstraint(Sketcher.Constraint("DistanceY", -1, 1, 36, 2, Q("41 in")))
sketch3.addConstraint(Sketcher.Constraint("DistanceY", 5, 1, 5, 2, Q("7.25 in")))
sketch3.addConstraint(Sketcher.Constraint("DistanceX", 0, 2, -1, 1, Q("33.5 in")))
sketch3.addConstraint(Sketcher.Constraint("DistanceX", 4, 2, -1, 1, Q("32.75 in")))
sketch3.addConstraint(Sketcher.Constraint("DistanceX", 12, 2, -1, 1, Q("16.25 in")))
sketch3.addConstraint(Sketcher.Constraint("DistanceX", -1, 1, 20, 2, Q("0.25 in")))
sketch3.addConstraint(Sketcher.Constraint("DistanceX", -1, 1, 28, 2, Q("16.75 in")))
sketch3.addConstraint(Sketcher.Constraint("DistanceY", -1, 1, 4, 2, Q("33.125 in")))
pad3 = body.newObject("PartDesign::Pad", "Pad002")
pad3.Profile = sketch3
pad3.Length = Q("0.25 in")

doc.recompute()
